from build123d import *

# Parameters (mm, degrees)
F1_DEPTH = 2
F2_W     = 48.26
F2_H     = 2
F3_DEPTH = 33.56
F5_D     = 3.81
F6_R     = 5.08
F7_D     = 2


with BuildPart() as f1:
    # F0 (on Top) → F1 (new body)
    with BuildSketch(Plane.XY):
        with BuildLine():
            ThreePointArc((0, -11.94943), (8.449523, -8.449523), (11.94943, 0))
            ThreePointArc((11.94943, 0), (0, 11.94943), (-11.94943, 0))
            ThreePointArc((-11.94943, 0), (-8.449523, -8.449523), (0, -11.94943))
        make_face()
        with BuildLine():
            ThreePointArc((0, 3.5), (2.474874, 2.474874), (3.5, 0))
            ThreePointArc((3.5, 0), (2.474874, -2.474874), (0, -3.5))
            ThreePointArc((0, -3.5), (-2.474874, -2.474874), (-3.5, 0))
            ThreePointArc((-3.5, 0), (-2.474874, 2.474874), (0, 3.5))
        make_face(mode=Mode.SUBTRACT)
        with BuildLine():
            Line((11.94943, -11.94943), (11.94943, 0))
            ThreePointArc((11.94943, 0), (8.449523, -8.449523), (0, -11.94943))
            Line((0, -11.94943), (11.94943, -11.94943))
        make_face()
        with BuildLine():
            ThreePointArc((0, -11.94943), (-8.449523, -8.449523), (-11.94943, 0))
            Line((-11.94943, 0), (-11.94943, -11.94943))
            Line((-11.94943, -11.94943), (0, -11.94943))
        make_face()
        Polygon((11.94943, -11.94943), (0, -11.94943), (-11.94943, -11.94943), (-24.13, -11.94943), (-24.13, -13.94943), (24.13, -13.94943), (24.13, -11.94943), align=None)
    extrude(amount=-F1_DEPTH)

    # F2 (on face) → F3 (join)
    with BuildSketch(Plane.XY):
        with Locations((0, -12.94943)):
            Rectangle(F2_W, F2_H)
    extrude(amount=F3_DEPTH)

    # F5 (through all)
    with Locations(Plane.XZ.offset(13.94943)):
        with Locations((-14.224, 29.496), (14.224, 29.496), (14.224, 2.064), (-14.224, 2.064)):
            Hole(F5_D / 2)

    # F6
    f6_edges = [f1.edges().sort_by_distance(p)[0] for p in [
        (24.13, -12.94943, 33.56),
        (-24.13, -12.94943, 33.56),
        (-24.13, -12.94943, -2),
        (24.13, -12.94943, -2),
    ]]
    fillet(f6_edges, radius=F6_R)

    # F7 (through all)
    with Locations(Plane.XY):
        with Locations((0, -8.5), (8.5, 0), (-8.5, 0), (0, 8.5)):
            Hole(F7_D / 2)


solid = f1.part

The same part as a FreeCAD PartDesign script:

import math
import FreeCAD as App
import Part
import Sketcher

V = App.Vector
Q = App.Units.Quantity


def edges_at(feature, points):
    """Names of the edges that pass closest to the given points."""
    edges = feature.Shape.Edges
    near = lambda p: min(range(len(edges)), key=lambda i: edges[i].distToShape(Part.Vertex(*p))[0])
    return sorted({f"Edge{near(p) + 1}" for p in points})


def add_polygon(sketch, points):
    """Adds a closed chain of lines whose ends are joined by coincident constraints."""
    first, n = sketch.GeometryCount, len(points)
    for a, b in zip(points, points[1:] + points[:1]):
        sketch.addGeometry(Part.LineSegment(App.Vector(*a, 0), App.Vector(*b, 0)), False)
    for i in range(n):
        sketch.addConstraint(Sketcher.Constraint("Coincident", first + i, 2, first + (i + 1) % n, 1))

doc = App.newDocument("Part")
body = doc.addObject("PartDesign::Body", "Body")

# Sketch on XY plane
sketch1 = doc.addObject("Sketcher::SketchObject", "Sketch")
body.addObject(sketch1)
sketch1.AttachmentSupport = (doc.XY_Plane, [""])
sketch1.MapMode = "FlatFace"
sketch1.addGeometry([
    Part.LineSegment(V(11.9, -11.9, 0), V(11.9, 0, 0)),  # 0
    Part.ArcOfCircle(Part.Circle(V(0, 0, 0), V(0, 0, 1), 11.9), math.radians(0), math.radians(180)),  # 1
    Part.LineSegment(V(-11.9, 0, 0), V(-11.9, -11.9, 0)),  # 2
    Part.LineSegment(V(-11.9, -11.9, 0), V(-24.1, -11.9, 0)),  # 3
    Part.LineSegment(V(-24.1, -11.9, 0), V(-24.1, -13.9, 0)),  # 4
    Part.LineSegment(V(-24.1, -13.9, 0), V(24.1, -13.9, 0)),  # 5
    Part.LineSegment(V(24.1, -13.9, 0), V(24.1, -11.9, 0)),  # 6
    Part.LineSegment(V(24.1, -11.9, 0), V(11.9, -11.9, 0)),  # 7
    Part.ArcOfCircle(Part.Circle(V(0, 0, 0), V(0, 0, 1), 3.5), math.radians(90), math.radians(180)),  # 8
    Part.ArcOfCircle(Part.Circle(V(0, 0, 0), V(0, 0, 1), 3.5), math.radians(0), math.radians(90)),  # 9
    Part.ArcOfCircle(Part.Circle(V(0, 0, 0), V(0, 0, 1), 3.5), math.radians(-90), math.radians(0)),  # 10
    Part.ArcOfCircle(Part.Circle(V(0, 0, 0), V(0, 0, 1), 3.5), math.radians(180), math.radians(270)),  # 11
], False)
sketch1.addConstraint([
    Sketcher.Constraint("Tangent", 0, 2, 1, 1),
    Sketcher.Constraint("Tangent", 1, 2, 2, 1),
    Sketcher.Constraint("Coincident", 2, 2, 3, 1),
    Sketcher.Constraint("Coincident", 3, 2, 4, 1),
    Sketcher.Constraint("Coincident", 4, 2, 5, 1),
    Sketcher.Constraint("Coincident", 5, 2, 6, 1),
    Sketcher.Constraint("Coincident", 6, 2, 7, 1),
    Sketcher.Constraint("Coincident", 7, 2, 0, 1),
    Sketcher.Constraint("Tangent", 8, 1, 9, 2),
    Sketcher.Constraint("Tangent", 9, 1, 10, 2),
    Sketcher.Constraint("Tangent", 10, 1, 11, 2),
    Sketcher.Constraint("Tangent", 11, 1, 8, 2),
    Sketcher.Constraint("Vertical", 0),
    Sketcher.Constraint("Vertical", 2),
    Sketcher.Constraint("Horizontal", 3),
    Sketcher.Constraint("Vertical", 4),
    Sketcher.Constraint("Horizontal", 5),
    Sketcher.Constraint("Vertical", 6),
    Sketcher.Constraint("Horizontal", 7),
    Sketcher.Constraint("Coincident", 1, 3, -1, 1),
    Sketcher.Constraint("Coincident", 8, 3, -1, 1),
    Sketcher.Constraint("Equal", 8, 9),
    Sketcher.Constraint("Symmetric", 3, 2, 6, 2, -2),
    Sketcher.Constraint("PointOnObject", 8, 1, -2),
    Sketcher.Constraint("PointOnObject", 9, 1, -1),
    Sketcher.Constraint("PointOnObject", 10, 1, -2),
    Sketcher.Constraint("PointOnObject", 11, 1, -1),
    Sketcher.Constraint("DistanceX", 5, 1, 5, 2, Q("1.9 in")),
    Sketcher.Constraint("Radius", 8, 3.499999),
    Sketcher.Constraint("Radius", 1, 11.94943),
    Sketcher.Constraint("DistanceY", 4, 2, 4, 1, 2.0),
    Sketcher.Constraint("DistanceY", 0, 1, 0, 2, 11.94943),
])
pad1 = doc.addObject("PartDesign::Pad", "Pad")
body.addObject(pad1)
pad1.Profile = sketch1
pad1.Length = 2
pad1.Reversed = True

# Sketch on XY plane
sketch2 = doc.addObject("Sketcher::SketchObject", "Sketch001")
body.addObject(sketch2)
sketch2.AttachmentSupport = (doc.XY_Plane, [""])
sketch2.MapMode = "FlatFace"
add_polygon(sketch2, [(-24.1, -11.9), (-24.1, -13.9), (24.1, -13.9), (24.1, -11.9)])  # lines 0-3
sketch2.addConstraint([
    Sketcher.Constraint("Vertical", 0),
    Sketcher.Constraint("Horizontal", 1),
    Sketcher.Constraint("Vertical", 2),
    Sketcher.Constraint("Horizontal", 3),
    Sketcher.Constraint("DistanceX", 1, 1, 1, 2, Q("1.9 in")),
    Sketcher.Constraint("DistanceX", 0, 2, -1, 1, Q("0.95 in")),
    Sketcher.Constraint("DistanceY", 0, 2, 0, 1, 2.0),
    Sketcher.Constraint("DistanceY", 0, 2, -1, 1, 13.94943),
])
pad2 = doc.addObject("PartDesign::Pad", "Pad001")
body.addObject(pad2)
pad2.Profile = sketch2
pad2.Length = 33.56

# Sketch on XZ plane
sketch3 = doc.addObject("Sketcher::SketchObject", "Sketch002")
body.addObject(sketch3)
sketch3.AttachmentSupport = (doc.XZ_Plane, [""])
sketch3.MapMode = "FlatFace"
sketch3.AttachmentOffset = App.Placement(V(0, 0, 13.94943), App.Rotation())
sketch3.addGeometry([
    Part.Circle(V(-14.2, 29.5, 0), V(0, 0, 1), 1.9),
    Part.Circle(V(14.2, 29.5, 0), V(0, 0, 1), 1.9),
    Part.Circle(V(14.2, 2.1, 0), V(0, 0, 1), 1.9),
    Part.Circle(V(-14.2, 2.1, 0), V(0, 0, 1), 1.9),
], False)
sketch3.addConstraint([
    Sketcher.Constraint("Equal", 0, 1),
    Sketcher.Constraint("Equal", 1, 2),
    Sketcher.Constraint("Equal", 2, 3),
    Sketcher.Constraint("Symmetric", 0, 3, 1, 3, -2),
    Sketcher.Constraint("Symmetric", 2, 3, 3, 3, -2),
    Sketcher.Constraint("Vertical", 1, 3, 2, 3),
    Sketcher.Constraint("Diameter", 0, Q("0.15 in")),
    Sketcher.Constraint("DistanceX", 0, 3, -1, 1, Q("0.56 in")),
    Sketcher.Constraint("DistanceY", 2, 3, 1, 3, Q("1.08 in")),
    Sketcher.Constraint("DistanceY", -1, 1, 0, 3, 29.496),
])
doc.recompute()
hole = doc.addObject("PartDesign::Hole", "Hole")
body.addObject(hole)
hole.Profile = sketch3
hole.ThreadType = "None"
hole.Diameter = Q("0.15 in")
hole.DepthType = "ThroughAll"
doc.recompute()

fillet = doc.addObject("PartDesign::Fillet", "Fillet")
body.addObject(fillet)
fillet.Base = (hole, edges_at(hole, [
    (24.13, -12.949, 33.56),
    (-24.13, -12.949, 33.56),
    (-24.13, -12.949, -2),
    (24.13, -12.949, -2),
]))
fillet.Radius = Q("0.2 in")

# Sketch on XY plane
sketch4 = doc.addObject("Sketcher::SketchObject", "Sketch003")
body.addObject(sketch4)
sketch4.AttachmentSupport = (doc.XY_Plane, [""])
sketch4.MapMode = "FlatFace"
sketch4.addGeometry([
    Part.Circle(V(0, -8.5, 0), V(0, 0, 1), 1),
    Part.Circle(V(8.5, 0, 0), V(0, 0, 1), 1),
    Part.Circle(V(-8.5, 0, 0), V(0, 0, 1), 1),
    Part.Circle(V(0, 8.5, 0), V(0, 0, 1), 1),
], False)
sketch4.addConstraint([
    Sketcher.Constraint("Equal", 0, 1),
    Sketcher.Constraint("Equal", 1, 2),
    Sketcher.Constraint("Equal", 2, 3),
    Sketcher.Constraint("Symmetric", 1, 3, 2, 3, -1, 1),
    Sketcher.Constraint("Symmetric", 0, 3, 3, 3, -1, 1),
    Sketcher.Constraint("PointOnObject", 0, 3, -2),
    Sketcher.Constraint("PointOnObject", 1, 3, -1),
    Sketcher.Constraint("Diameter", 0, 2.0),
    Sketcher.Constraint("DistanceY", 0, 3, -1, 1, 8.5),
    Sketcher.Constraint("DistanceX", -1, 1, 1, 3, 8.5),
])
doc.recompute()
hole2 = doc.addObject("PartDesign::Hole", "Hole001")
body.addObject(hole2)
hole2.Profile = sketch4
hole2.ThreadType = "None"
hole2.Diameter = 2
hole2.DepthType = "ThroughAll"

doc.recompute()
